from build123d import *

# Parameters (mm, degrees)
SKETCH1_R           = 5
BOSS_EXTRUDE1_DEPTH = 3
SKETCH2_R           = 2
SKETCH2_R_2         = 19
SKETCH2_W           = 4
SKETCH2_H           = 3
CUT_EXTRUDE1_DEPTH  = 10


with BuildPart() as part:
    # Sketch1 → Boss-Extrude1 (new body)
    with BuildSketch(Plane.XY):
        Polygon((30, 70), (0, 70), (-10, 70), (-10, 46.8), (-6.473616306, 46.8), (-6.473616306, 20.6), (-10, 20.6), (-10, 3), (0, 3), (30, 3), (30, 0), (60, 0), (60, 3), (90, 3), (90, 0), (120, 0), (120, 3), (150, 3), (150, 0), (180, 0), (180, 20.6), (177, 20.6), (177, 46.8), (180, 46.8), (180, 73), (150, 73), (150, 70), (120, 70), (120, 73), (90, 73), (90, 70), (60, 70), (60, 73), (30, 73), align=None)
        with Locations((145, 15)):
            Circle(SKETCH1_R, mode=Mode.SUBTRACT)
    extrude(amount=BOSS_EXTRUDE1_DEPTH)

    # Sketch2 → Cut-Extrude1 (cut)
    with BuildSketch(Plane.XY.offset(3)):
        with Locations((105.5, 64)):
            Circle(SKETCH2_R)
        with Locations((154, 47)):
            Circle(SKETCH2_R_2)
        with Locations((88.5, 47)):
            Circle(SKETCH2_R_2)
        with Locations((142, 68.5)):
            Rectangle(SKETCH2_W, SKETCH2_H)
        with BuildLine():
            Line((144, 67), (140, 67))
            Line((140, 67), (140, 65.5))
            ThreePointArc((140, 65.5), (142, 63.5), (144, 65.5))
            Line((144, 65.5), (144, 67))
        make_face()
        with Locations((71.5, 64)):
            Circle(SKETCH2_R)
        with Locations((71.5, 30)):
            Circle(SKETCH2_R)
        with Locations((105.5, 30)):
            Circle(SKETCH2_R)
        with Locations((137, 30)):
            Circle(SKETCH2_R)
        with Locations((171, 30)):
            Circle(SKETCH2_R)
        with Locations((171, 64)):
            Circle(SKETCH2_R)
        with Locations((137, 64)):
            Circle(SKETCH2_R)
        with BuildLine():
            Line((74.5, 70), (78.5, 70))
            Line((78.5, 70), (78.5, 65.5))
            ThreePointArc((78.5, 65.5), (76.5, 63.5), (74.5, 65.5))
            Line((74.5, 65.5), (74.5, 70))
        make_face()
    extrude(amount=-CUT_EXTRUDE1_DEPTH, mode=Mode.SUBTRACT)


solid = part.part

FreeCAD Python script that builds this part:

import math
import FreeCAD as App
import Part
import Sketcher

V = App.Vector
Q = App.Units.Quantity

doc = App.newDocument("Part")
params = doc.addObject("Spreadsheet::Sheet", "Params")
for row, (alias, value) in enumerate([
    ("sketch1_diameter", "10 mm"),
    ("sketch1_width", "40 mm"),
    ("sketch1_width2", "30 mm"),
    ("sketch1_width3", "3 mm"),
    ("sketch1_height", "23.2 mm"),
    ("pad1_length", "3 mm"),
    ("sketch2_diameter", "4 mm"),
    ("sketch2_diameter2", "38 mm"),
    ("sketch2_height", "4.5 mm"),
    ("pocket1_length", "10 mm"),
], start=1):
    params.set(f"A{row}", alias)
    params.set(f"B{row}", "=" + value)
    params.setAlias(f"B{row}", alias)

body = doc.addObject("PartDesign::Body", "Body")

# Sketch on XY plane
sketch1 = body.newObject("Sketcher::SketchObject", "Sketch")
sketch1.AttachmentSupport = (doc.getObject("XY_Plane"), [""])
sketch1.MapMode = "FlatFace"
sketch1.addGeometry([
    Part.LineSegment(V(30, 70, 0), V(-10, 70, 0)),  # 0
    Part.LineSegment(V(-10, 70, 0), V(-10, 46.8, 0)),  # 1
    Part.LineSegment(V(-10, 46.8, 0), V(-6.5, 46.8, 0)),  # 2
    Part.LineSegment(V(-6.5, 46.8, 0), V(-6.5, 20.6, 0)),  # 3
    Part.LineSegment(V(-6.5, 20.6, 0), V(-10, 20.6, 0)),  # 4
    Part.LineSegment(V(-10, 20.6, 0), V(-10, 3, 0)),  # 5
    Part.LineSegment(V(-10, 3, 0), V(30, 3, 0)),  # 6
    Part.LineSegment(V(30, 3, 0), V(30, 0, 0)),  # 7
    Part.LineSegment(V(30, 0, 0), V(60, 0, 0)),  # 8
    Part.LineSegment(V(60, 0, 0), V(60, 3, 0)),  # 9
    Part.LineSegment(V(60, 3, 0), V(90, 3, 0)),  # 10
    Part.LineSegment(V(90, 3, 0), V(90, 0, 0)),  # 11
    Part.LineSegment(V(90, 0, 0), V(120, 0, 0)),  # 12
    Part.LineSegment(V(120, 0, 0), V(120, 3, 0)),  # 13
    Part.LineSegment(V(120, 3, 0), V(150, 3, 0)),  # 14
    Part.LineSegment(V(150, 3, 0), V(150, 0, 0)),  # 15
    Part.LineSegment(V(150, 0, 0), V(180, 0, 0)),  # 16
    Part.LineSegment(V(180, 0, 0), V(180, 20.6, 0)),  # 17
    Part.LineSegment(V(180, 20.6, 0), V(177, 20.6, 0)),  # 18
    Part.LineSegment(V(177, 20.6, 0), V(177, 46.8, 0)),  # 19
    Part.LineSegment(V(177, 46.8, 0), V(180, 46.8, 0)),  # 20
    Part.LineSegment(V(180, 46.8, 0), V(180, 73, 0)),  # 21
    Part.LineSegment(V(180, 73, 0), V(150, 73, 0)),  # 22
    Part.LineSegment(V(150, 73, 0), V(150, 70, 0)),  # 23
    Part.LineSegment(V(150, 70, 0), V(120, 70, 0)),  # 24
    Part.LineSegment(V(120, 70, 0), V(120, 73, 0)),  # 25
    Part.LineSegment(V(120, 73, 0), V(90, 73, 0)),  # 26
    Part.LineSegment(V(90, 73, 0), V(90, 70, 0)),  # 27
    Part.LineSegment(V(90, 70, 0), V(60, 70, 0)),  # 28
    Part.LineSegment(V(60, 70, 0), V(60, 73, 0)),  # 29
    Part.LineSegment(V(60, 73, 0), V(30, 73, 0)),  # 30
    Part.LineSegment(V(30, 73, 0), V(30, 70, 0)),  # 31
    Part.Circle(V(145, 15, 0), V(0, 0, 1), 5),  # 32
], False)
sketch1.addConstraint([
    Sketcher.Constraint("Coincident", 0, 2, 1, 1),
    Sketcher.Constraint("Coincident", 1, 2, 2, 1),
    Sketcher.Constraint("Coincident", 2, 2, 3, 1),
    Sketcher.Constraint("Coincident", 3, 2, 4, 1),
    Sketcher.Constraint("Coincident", 4, 2, 5, 1),
    Sketcher.Constraint("Coincident", 5, 2, 6, 1),
    Sketcher.Constraint("Coincident", 6, 2, 7, 1),
    Sketcher.Constraint("Coincident", 7, 2, 8, 1),
    Sketcher.Constraint("Coincident", 8, 2, 9, 1),
    Sketcher.Constraint("Coincident", 9, 2, 10, 1),
    Sketcher.Constraint("Coincident", 10, 2, 11, 1),
    Sketcher.Constraint("Coincident", 11, 2, 12, 1),
    Sketcher.Constraint("Coincident", 12, 2, 13, 1),
    Sketcher.Constraint("Coincident", 13, 2, 14, 1),
    Sketcher.Constraint("Coincident", 14, 2, 15, 1),
    Sketcher.Constraint("Coincident", 15, 2, 16, 1),
    Sketcher.Constraint("Coincident", 16, 2, 17, 1),
    Sketcher.Constraint("Coincident", 17, 2, 18, 1),
    Sketcher.Constraint("Coincident", 18, 2, 19, 1),
    Sketcher.Constraint("Coincident", 19, 2, 20, 1),
    Sketcher.Constraint("Coincident", 20, 2, 21, 1),
    Sketcher.Constraint("Coincident", 21, 2, 22, 1),
    Sketcher.Constraint("Coincident", 22, 2, 23, 1),
    Sketcher.Constraint("Coincident", 23, 2, 24, 1),
    Sketcher.Constraint("Coincident", 24, 2, 25, 1),
    Sketcher.Constraint("Coincident", 25, 2, 26, 1),
    Sketcher.Constraint("Coincident", 26, 2, 27, 1),
    Sketcher.Constraint("Coincident", 27, 2, 28, 1),
    Sketcher.Constraint("Coincident", 28, 2, 29, 1),
    Sketcher.Constraint("Coincident", 29, 2, 30, 1),
    Sketcher.Constraint("Coincident", 30, 2, 31, 1),
    Sketcher.Constraint("Coincident", 31, 2, 0, 1),
    Sketcher.Constraint("Horizontal", 0),
    Sketcher.Constraint("Vertical", 1),
    Sketcher.Constraint("Horizontal", 2),
    Sketcher.Constraint("Vertical", 3),
    Sketcher.Constraint("Horizontal", 4),
    Sketcher.Constraint("Vertical", 5),
    Sketcher.Constraint("Horizontal", 6),
    Sketcher.Constraint("Vertical", 7),
    Sketcher.Constraint("Horizontal", 8),
    Sketcher.Constraint("Vertical", 9),
    Sketcher.Constraint("Horizontal", 10),
    Sketcher.Constraint("Vertical", 11),
    Sketcher.Constraint("Horizontal", 12),
    Sketcher.Constraint("Vertical", 13),
    Sketcher.Constraint("Horizontal", 14),
    Sketcher.Constraint("Vertical", 15),
    Sketcher.Constraint("Horizontal", 16),
    Sketcher.Constraint("Vertical", 17),
    Sketcher.Constraint("Horizontal", 18),
    Sketcher.Constraint("Vertical", 19),
    Sketcher.Constraint("Horizontal", 20),
    Sketcher.Constraint("Vertical", 21),
    Sketcher.Constraint("Horizontal", 22),
    Sketcher.Constraint("Vertical", 23),
    Sketcher.Constraint("Horizontal", 24),
    Sketcher.Constraint("Vertical", 25),
    Sketcher.Constraint("Horizontal", 26),
    Sketcher.Constraint("Vertical", 27),
    Sketcher.Constraint("Horizontal", 28),
    Sketcher.Constraint("Vertical", 29),
    Sketcher.Constraint("Horizontal", 30),
    Sketcher.Constraint("Vertical", 31),
    Sketcher.Constraint("PointOnObject", 7, 2, -1),
    Sketcher.Constraint("PointOnObject", 11, 2, -1),
    Sketcher.Constraint("PointOnObject", 15, 2, -1),
    Sketcher.Constraint("Horizontal", 6, 2, 9, 2),
    Sketcher.Constraint("Horizontal", 10, 2, 13, 2),
    Sketcher.Constraint("Horizontal", 4, 2, 17, 2),
    Sketcher.Constraint("Horizontal", 2, 2, 19, 2),
    Sketcher.Constraint("Horizontal", 0, 2, 23, 2),
    Sketcher.Constraint("Horizontal", 22, 2, 25, 2),
    Sketcher.Constraint("Horizontal", 24, 2, 27, 2),
    Sketcher.Constraint("Horizontal", 26, 2, 29, 2),
    Sketcher.Constraint("Vertical", 1, 2, 4, 2),
    Sketcher.Constraint("Vertical", 17, 2, 20, 2),
    Sketcher.Constraint("Vertical", 15, 2, 22, 2),
    Sketcher.Constraint("Vertical", 13, 2, 24, 2),
    Sketcher.Constraint("Vertical", 11, 2, 26, 2),
    Sketcher.Constraint("Vertical", 9, 2, 28, 2),
    Sketcher.Constraint("Vertical", 7, 2, 30, 2),
    Sketcher.Constraint("Equal", 8, 10),
    Sketcher.Constraint("Equal", 10, 12),
    Sketcher.Constraint("Equal", 12, 14),
    Sketcher.Constraint("Equal", 14, 16),
    Sketcher.Constraint("Equal", 20, 7),
    Sketcher.Constraint("Equal", 19, 21),
    Sketcher.Constraint("Equal", 15, 23),
    Sketcher.Constraint("Diameter", 32, Q("10 mm")),
    Sketcher.Constraint("DistanceX", 0, 2, 0, 1, Q("40 mm")),
    Sketcher.Constraint("DistanceX", 8, 1, 8, 2, Q("30 mm")),
    Sketcher.Constraint("DistanceX", 18, 2, 18, 1, Q("3 mm")),
    Sketcher.Constraint("DistanceY", 1, 2, 1, 1, Q("23.2 mm")),
    Sketcher.Constraint("DistanceY", 5, 2, 5, 1, Q("17.6 mm")),
    Sketcher.Constraint("DistanceX", -1, 1, 32, 3, Q("145 mm")),
    Sketcher.Constraint("DistanceY", -1, 1, 32, 3, Q("15 mm")),
    Sketcher.Constraint("DistanceX", 0, 2, -1, 1, Q("10 mm")),
    Sketcher.Constraint("DistanceX", 2, 1, 2, 2, Q("3.526384 mm")),
])
sketch1.setExpression("Constraints[89]", "Params.sketch1_diameter")
sketch1.setExpression("Constraints[90]", "Params.sketch1_width")
sketch1.setExpression("Constraints[91]", "Params.sketch1_width2")
sketch1.setExpression("Constraints[92]", "Params.sketch1_width3")
sketch1.setExpression("Constraints[93]", "Params.sketch1_height")
pad1 = body.newObject("PartDesign::Pad", "Pad")
pad1.Profile = sketch1
pad1.setExpression("Length", "Params.pad1_length")

# Sketch on XY plane
sketch2 = body.newObject("Sketcher::SketchObject", "Sketch001")
sketch2.AttachmentSupport = (doc.getObject("XY_Plane"), [""])
sketch2.MapMode = "FlatFace"
sketch2.AttachmentOffset = App.Placement(V(0, 0, 3), App.Rotation())
sketch2.addGeometry([
    Part.Circle(V(105.5, 64, 0), V(0, 0, 1), 2),  # 0
    Part.Circle(V(154, 47, 0), V(0, 0, 1), 19),  # 1
    Part.Circle(V(88.5, 47, 0), V(0, 0, 1), 19),  # 2
    Part.LineSegment(V(140, 70, 0), V(140, 65.5, 0)),  # 3
    Part.ArcOfCircle(Part.Circle(V(142, 65.5, 0), V(0, 0, 1), 2), math.radians(180), math.radians(360)),  # 4
    Part.LineSegment(V(144, 65.5, 0), V(144, 70, 0)),  # 5
    Part.LineSegment(V(144, 70, 0), V(140, 70, 0)),  # 6
    Part.Circle(V(71.5, 64, 0), V(0, 0, 1), 2),  # 7
    Part.Circle(V(71.5, 30, 0), V(0, 0, 1), 2),  # 8
    Part.Circle(V(105.5, 30, 0), V(0, 0, 1), 2),  # 9
    Part.Circle(V(137, 30, 0), V(0, 0, 1), 2),  # 10
    Part.Circle(V(171, 30, 0), V(0, 0, 1), 2),  # 11
    Part.Circle(V(171, 64, 0), V(0, 0, 1), 2),  # 12
    Part.Circle(V(137, 64, 0), V(0, 0, 1), 2),  # 13
    Part.LineSegment(V(78.5, 70, 0), V(74.5, 70, 0)),  # 14
    Part.LineSegment(V(74.5, 70, 0), V(74.5, 65.5, 0)),  # 15
    Part.ArcOfCircle(Part.Circle(V(76.5, 65.5, 0), V(0, 0, 1), 2), math.radians(180), math.radians(360)),  # 16
    Part.LineSegment(V(78.5, 65.5, 0), V(78.5, 70, 0)),  # 17
], False)
sketch2.addConstraint([
    Sketcher.Constraint("Tangent", 3, 2, 4, 1),
    Sketcher.Constraint("Tangent", 4, 2, 5, 1),
    Sketcher.Constraint("Coincident", 5, 2, 6, 1),
    Sketcher.Constraint("Coincident", 6, 2, 3, 1),
    Sketcher.Constraint("Coincident", 14, 2, 15, 1),
    Sketcher.Constraint("Tangent", 15, 2, 16, 1),
    Sketcher.Constraint("Tangent", 16, 2, 17, 1),
    Sketcher.Constraint("Coincident", 17, 2, 14, 1),
    Sketcher.Constraint("Vertical", 3),
    Sketcher.Constraint("Vertical", 5),
    Sketcher.Constraint("Horizontal", 6),
    Sketcher.Constraint("Horizontal", 14),
    Sketcher.Constraint("Vertical", 15),
    Sketcher.Constraint("Vertical", 17),
    Sketcher.Constraint("Equal", 1, 2),
    Sketcher.Constraint("Equal", 0, 4),
    Sketcher.Constraint("Equal", 4, 7),
    Sketcher.Constraint("Equal", 7, 8),
    Sketcher.Constraint("Equal", 8, 9),
    Sketcher.Constraint("Equal", 9, 10),
    Sketcher.Constraint("Equal", 10, 11),
    Sketcher.Constraint("Equal", 11, 12),
    Sketcher.Constraint("Equal", 12, 13),
    Sketcher.Constraint("Equal", 13, 16),
    Sketcher.Constraint("Horizontal", 1, 3, 2, 3),
    Sketcher.Constraint("Horizontal", 0, 3, 7, 3),
    Sketcher.Constraint("Horizontal", 8, 3, 9, 3),
    Sketcher.Constraint("Horizontal", 9, 3, 10, 3),
    Sketcher.Constraint("Horizontal", 10, 3, 11, 3),
    Sketcher.Constraint("Horizontal", 7, 3, 12, 3),
    Sketcher.Constraint("Horizontal", 12, 3, 13, 3),
    Sketcher.Constraint("Horizontal", 4, 3, 16, 3),
    Sketcher.Constraint("Horizontal", 6, 2, 14, 2),
    Sketcher.Constraint("Vertical", 7, 3, 8, 3),
    Sketcher.Constraint("Vertical", 0, 3, 9, 3),
    Sketcher.Constraint("Vertical", 11, 3, 12, 3),
    Sketcher.Constraint("Vertical", 10, 3, 13, 3),
    Sketcher.Constraint("Diameter", 0, Q("4 mm")),
    Sketcher.Constraint("Diameter", 1, Q("38 mm")),
    Sketcher.Constraint("DistanceY", 3, 2, 3, 1, Q("4.5 mm")),
    Sketcher.Constraint("DistanceY", -1, 1, 0, 3, Q("64 mm")),
    Sketcher.Constraint("DistanceX", -1, 1, 1, 3, Q("154 mm")),
    Sketcher.Constraint("DistanceY", -1, 1, 1, 3, Q("47 mm")),
    Sketcher.Constraint("DistanceX", -1, 1, 4, 3, Q("142 mm")),
    Sketcher.Constraint("DistanceY", -1, 1, 8, 3, Q("30 mm")),
    Sketcher.Constraint("DistanceX", -1, 1, 10, 3, Q("137 mm")),
    Sketcher.Constraint("DistanceX", -1, 1, 11, 3, Q("171 mm")),
    Sketcher.Constraint("DistanceY", -1, 1, 5, 2, Q("70 mm")),
    Sketcher.Constraint("DistanceX", 2, 3, 0, 3, Q("17 mm")),
    Sketcher.Constraint("DistanceX", 7, 3, 2, 3, Q("17 mm")),
    Sketcher.Constraint("DistanceX", 7, 3, 16, 3, Q("5 mm")),
    Sketcher.Constraint("DistanceX", -1, 1, 0, 3, Q("105.5 mm")),
])
sketch2.setExpression("Constraints[37]", "Params.sketch2_diameter")
sketch2.setExpression("Constraints[38]", "Params.sketch2_diameter2")
sketch2.setExpression("Constraints[39]", "Params.sketch2_height")
pocket1 = body.newObject("PartDesign::Pocket", "Pocket")
pocket1.Profile = sketch2
pocket1.setExpression("Length", "Params.pocket1_length")

doc.recompute()
